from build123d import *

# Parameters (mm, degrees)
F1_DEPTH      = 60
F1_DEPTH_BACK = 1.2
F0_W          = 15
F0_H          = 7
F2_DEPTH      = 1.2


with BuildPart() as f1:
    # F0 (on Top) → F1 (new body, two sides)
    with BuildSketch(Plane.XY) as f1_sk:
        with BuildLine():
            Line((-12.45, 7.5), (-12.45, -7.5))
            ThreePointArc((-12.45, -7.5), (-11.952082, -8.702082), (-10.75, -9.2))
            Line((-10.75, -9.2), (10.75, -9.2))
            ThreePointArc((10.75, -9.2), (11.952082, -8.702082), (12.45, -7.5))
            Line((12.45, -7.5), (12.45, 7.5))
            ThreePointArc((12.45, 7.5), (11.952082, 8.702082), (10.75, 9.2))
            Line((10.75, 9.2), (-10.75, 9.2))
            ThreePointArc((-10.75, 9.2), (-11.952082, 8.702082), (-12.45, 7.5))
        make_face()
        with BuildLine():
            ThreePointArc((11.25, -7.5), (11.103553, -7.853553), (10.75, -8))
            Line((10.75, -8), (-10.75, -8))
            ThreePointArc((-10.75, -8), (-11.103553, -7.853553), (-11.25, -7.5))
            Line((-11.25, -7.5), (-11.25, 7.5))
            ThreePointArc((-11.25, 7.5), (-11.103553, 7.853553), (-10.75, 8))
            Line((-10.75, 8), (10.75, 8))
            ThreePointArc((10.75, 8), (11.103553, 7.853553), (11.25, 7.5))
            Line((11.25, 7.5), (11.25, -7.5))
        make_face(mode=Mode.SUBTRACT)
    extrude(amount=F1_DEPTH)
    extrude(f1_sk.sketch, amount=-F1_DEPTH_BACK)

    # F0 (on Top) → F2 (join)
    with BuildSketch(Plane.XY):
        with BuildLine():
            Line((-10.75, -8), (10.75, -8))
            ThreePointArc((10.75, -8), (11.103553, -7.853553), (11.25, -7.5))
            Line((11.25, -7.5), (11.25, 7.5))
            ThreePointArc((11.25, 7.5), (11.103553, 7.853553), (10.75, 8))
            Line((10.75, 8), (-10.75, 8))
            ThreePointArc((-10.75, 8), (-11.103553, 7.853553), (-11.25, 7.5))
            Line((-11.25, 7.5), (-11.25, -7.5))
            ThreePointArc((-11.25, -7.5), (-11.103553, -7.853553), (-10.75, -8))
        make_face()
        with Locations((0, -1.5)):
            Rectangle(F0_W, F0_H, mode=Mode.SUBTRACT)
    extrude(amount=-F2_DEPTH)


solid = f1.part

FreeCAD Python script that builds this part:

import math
import FreeCAD as App
import Part
import Sketcher
from FreeCAD import Vector


def add_polygon(sketch, points):
    """Adds a closed chain of lines whose ends are joined by coincident constraints."""
    first, n = sketch.GeometryCount, len(points)
    for a, b in zip(points, points[1:] + points[:1]):
        sketch.addGeometry(Part.LineSegment(App.Vector(*a, 0), App.Vector(*b, 0)), False)
    for i in range(n):
        sketch.addConstraint(Sketcher.Constraint("Coincident", first + i, 2, first + (i + 1) % n, 1))

doc = App.newDocument("Part")
params = doc.addObject("Spreadsheet::Sheet", "Params")
for row, (alias, value) in enumerate([
    ("sketch1_radius", "1.699998 mm"),
    ("sketch1_radius2", "0.500001 mm"),
    ("sketch1_height", "15 mm"),
    ("sketch1_width", "21.5 mm"),
    ("pad1_length", "60 mm"),
    ("pad1_length2", "1.2 mm"),
    ("sketch2_radius", "0.500001 mm"),
    ("sketch2_width", "15 mm"),
    ("sketch2_height", "7 mm"),
    ("sketch2_width2", "21.5 mm"),
    ("pad2_length", "1.2 mm"),
], start=1):
    params.set(f"A{row}", alias)
    params.set(f"B{row}", "=" + value)
    params.setAlias(f"B{row}", alias)

body = doc.addObject("PartDesign::Body", "Body")

# Sketch on XY plane
sketch1 = body.newObject("Sketcher::SketchObject", "Sketch")
sketch1.AttachmentSupport = (doc.getObject("XY_Plane"), [""])
sketch1.MapMode = "FlatFace"
sketch1.addGeometry([
    Part.LineSegment(Vector(-12.4, 7.5, 0), Vector(-12.4, -7.5, 0)),  # 0
    Part.ArcOfCircle(Part.Circle(Vector(-10.8, -7.5, 0), Vector(0, 0, 1), 1.7), math.radians(180), math.radians(270)),  # 1
    Part.LineSegment(Vector(-10.8, -9.2, 0), Vector(10.8, -9.2, 0)),  # 2
    Part.ArcOfCircle(Part.Circle(Vector(10.8, -7.5, 0), Vector(0, 0, 1), 1.7), math.radians(-90), math.radians(0)),  # 3
    Part.LineSegment(Vector(12.4, -7.5, 0), Vector(12.4, 7.5, 0)),  # 4
    Part.ArcOfCircle(Part.Circle(Vector(10.8, 7.5, 0), Vector(0, 0, 1), 1.7), math.radians(0), math.radians(90)),  # 5
    Part.LineSegment(Vector(10.8, 9.2, 0), Vector(-10.8, 9.2, 0)),  # 6
    Part.ArcOfCircle(Part.Circle(Vector(-10.8, 7.5, 0), Vector(0, 0, 1), 1.7), math.radians(90), math.radians(180)),  # 7
    Part.LineSegment(Vector(11.2, 7.5, 0), Vector(11.2, -7.5, 0)),  # 8
    Part.ArcOfCircle(Part.Circle(Vector(10.7, -7.5, 0), Vector(0, 0, 1), 0.5), math.radians(-90), math.radians(0)),  # 9
    Part.LineSegment(Vector(10.8, -8, 0), Vector(-10.8, -8, 0)),  # 10
    Part.ArcOfCircle(Part.Circle(Vector(-10.7, -7.5, 0), Vector(0, 0, 1), 0.5), math.radians(-180), math.radians(-90)),  # 11
    Part.LineSegment(Vector(-11.2, -7.5, 0), Vector(-11.2, 7.5, 0)),  # 12
    Part.ArcOfCircle(Part.Circle(Vector(-10.7, 7.5, 0), Vector(0, 0, 1), 0.5), math.radians(90), math.radians(180)),  # 13
    Part.LineSegment(Vector(-10.8, 8, 0), Vector(10.8, 8, 0)),  # 14
    Part.ArcOfCircle(Part.Circle(Vector(10.7, 7.5, 0), Vector(0, 0, 1), 0.5), math.radians(0), math.radians(90)),  # 15
], False)
sketch1.addConstraint([
    Sketcher.Constraint("Tangent", 0, 2, 1, 1),
    Sketcher.Constraint("Tangent", 1, 2, 2, 1),
    Sketcher.Constraint("Tangent", 2, 2, 3, 1),
    Sketcher.Constraint("Tangent", 3, 2, 4, 1),
    Sketcher.Constraint("Tangent", 4, 2, 5, 1),
    Sketcher.Constraint("Tangent", 5, 2, 6, 1),
    Sketcher.Constraint("Tangent", 6, 2, 7, 1),
    Sketcher.Constraint("Tangent", 7, 2, 0, 1),
    Sketcher.Constraint("Coincident", 8, 2, 9, 2),
    Sketcher.Constraint("Coincident", 9, 1, 10, 1),
    Sketcher.Constraint("Coincident", 10, 2, 11, 2),
    Sketcher.Constraint("Coincident", 11, 1, 12, 1),
    Sketcher.Constraint("Coincident", 12, 2, 13, 2),
    Sketcher.Constraint("Coincident", 13, 1, 14, 1),
    Sketcher.Constraint("Coincident", 14, 2, 15, 2),
    Sketcher.Constraint("Coincident", 15, 1, 8, 1),
    Sketcher.Constraint("Vertical", 0),
    Sketcher.Constraint("Horizontal", 2),
    Sketcher.Constraint("Vertical", 4),
    Sketcher.Constraint("Horizontal", 6),
    Sketcher.Constraint("Vertical", 8),
    Sketcher.Constraint("Horizontal", 10),
    Sketcher.Constraint("Vertical", 12),
    Sketcher.Constraint("Horizontal", 14),
    Sketcher.Constraint("Coincident", 9, 3, 3, 3),
    Sketcher.Constraint("Coincident", 11, 3, 1, 3),
    Sketcher.Constraint("Coincident", 13, 3, 7, 3),
    Sketcher.Constraint("Equal", 1, 3),
    Sketcher.Constraint("Equal", 3, 5),
    Sketcher.Constraint("Equal", 5, 7),
    Sketcher.Constraint("Equal", 13, 15),
    Sketcher.Constraint("Symmetric", 1, 3, 5, 3, -1, 1),
    Sketcher.Constraint("Horizontal", 3, 2, 8, 2),
    Sketcher.Constraint("Horizontal", 8, 2, 11, 1),
    Sketcher.Constraint("Horizontal", 7, 2, 12, 2),
    Sketcher.Constraint("Horizontal", 12, 2, 15, 1),
    Sketcher.Constraint("Vertical", 5, 2, 9, 1),
    Sketcher.Constraint("Vertical", 6, 2, 10, 2),
    Sketcher.Constraint("Vertical", 10, 2, 13, 1),
    Sketcher.Constraint("Vertical", 9, 1, 14, 2),
    Sketcher.Constraint("Radius", 1, 1.699998),
    Sketcher.Constraint("Radius", 9, 0.500001),
    Sketcher.Constraint("DistanceY", 0, 2, 0, 1, 15.0),
    Sketcher.Constraint("DistanceX", 2, 1, 2, 2, 21.5),
])
sketch1.setExpression("Constraints[40]", "Params.sketch1_radius")
sketch1.setExpression("Constraints[41]", "Params.sketch1_radius2")
sketch1.setExpression("Constraints[42]", "Params.sketch1_height")
sketch1.setExpression("Constraints[43]", "Params.sketch1_width")
pad1 = body.newObject("PartDesign::Pad", "Pad")
pad1.Profile = sketch1
pad1.Type = "TwoLengths"
pad1.setExpression("Length", "Params.pad1_length")
pad1.setExpression("Length2", "Params.pad1_length2")

# Sketch on XY plane
sketch2 = body.newObject("Sketcher::SketchObject", "Sketch001")
sketch2.AttachmentSupport = (doc.getObject("XY_Plane"), [""])
sketch2.MapMode = "FlatFace"
sketch2.addGeometry(Part.LineSegment(Vector(-10.8, -8, 0), Vector(10.8, -8, 0)), False)  # 0
sketch2.addGeometry(Part.ArcOfCircle(Part.Circle(Vector(10.7, -7.5, 0), Vector(0, 0, 1), 0.5), math.radians(-90), math.radians(0)), False)  # 1
sketch2.addGeometry(Part.LineSegment(Vector(11.2, -7.5, 0), Vector(11.2, 7.5, 0)), False)  # 2
sketch2.addGeometry(Part.ArcOfCircle(Part.Circle(Vector(10.7, 7.5, 0), Vector(0, 0, 1), 0.5), math.radians(0), math.radians(90)), False)  # 3
sketch2.addGeometry(Part.LineSegment(Vector(10.8, 8, 0), Vector(-10.8, 8, 0)), False)  # 4
sketch2.addGeometry(Part.ArcOfCircle(Part.Circle(Vector(-10.7, 7.5, 0), Vector(0, 0, 1), 0.5), math.radians(90), math.radians(180)), False)  # 5
sketch2.addGeometry(Part.LineSegment(Vector(-11.2, 7.5, 0), Vector(-11.2, -7.5, 0)), False)  # 6
sketch2.addGeometry(Part.ArcOfCircle(Part.Circle(Vector(-10.7, -7.5, 0), Vector(0, 0, 1), 0.5), math.radians(-180), math.radians(-90)), False)  # 7
add_polygon(sketch2, [(7.5, -5), (-7.5, -5), (-7.5, 2), (7.5, 2)])  # lines 8-11
sketch2.addConstraint([
    Sketcher.Constraint("Coincident", 0, 2, 1, 1),
    Sketcher.Constraint("Coincident", 1, 2, 2, 1),
    Sketcher.Constraint("Coincident", 2, 2, 3, 1),
    Sketcher.Constraint("Coincident", 3, 2, 4, 1),
    Sketcher.Constraint("Coincident", 4, 2, 5, 1),
    Sketcher.Constraint("Coincident", 5, 2, 6, 1),
    Sketcher.Constraint("Coincident", 6, 2, 7, 1),
    Sketcher.Constraint("Coincident", 7, 2, 0, 1),
    Sketcher.Constraint("Horizontal", 0),
    Sketcher.Constraint("Vertical", 2),
    Sketcher.Constraint("Horizontal", 4),
    Sketcher.Constraint("Vertical", 6),
    Sketcher.Constraint("Horizontal", 8),
    Sketcher.Constraint("Vertical", 9),
    Sketcher.Constraint("Horizontal", 10),
    Sketcher.Constraint("Vertical", 11),
    Sketcher.Constraint("Equal", 1, 3),
    Sketcher.Constraint("Equal", 3, 5),
    Sketcher.Constraint("Equal", 5, 7),
    Sketcher.Constraint("Symmetric", 1, 3, 5, 3, -1, 1),
    Sketcher.Constraint("Horizontal", 7, 3, 1, 2),
    Sketcher.Constraint("Horizontal", 5, 3, 2, 2),
    Sketcher.Constraint("Horizontal", 2, 2, 5, 2),
    Sketcher.Constraint("Horizontal", 1, 2, 6, 2),
    Sketcher.Constraint("Vertical", 3, 3, 0, 2),
    Sketcher.Constraint("Vertical", 0, 2, 3, 2),
    Sketcher.Constraint("Vertical", 7, 3, 4, 2),
    Sketcher.Constraint("Vertical", 4, 2, 7, 2),
    Sketcher.Constraint("Equal", 10, 2),
    Sketcher.Constraint("Radius", 1, 0.500001),
    Sketcher.Constraint("DistanceX", 8, 2, 8, 1, 15.0),
    Sketcher.Constraint("DistanceY", 9, 1, 9, 2, 7.0),
    Sketcher.Constraint("DistanceX", 0, 1, 0, 2, 21.5),
    Sketcher.Constraint("DistanceY", 8, 2, -1, 1, 5.0),
    Sketcher.Constraint("DistanceX", 8, 2, -1, 1, 7.5),
])
sketch2.setExpression("Constraints[33]", "Params.sketch2_radius")
sketch2.setExpression("Constraints[34]", "Params.sketch2_width")
sketch2.setExpression("Constraints[35]", "Params.sketch2_height")
sketch2.setExpression("Constraints[36]", "Params.sketch2_width2")
pad2 = body.newObject("PartDesign::Pad", "Pad001")
pad2.Profile = sketch2
pad2.setExpression("Length", "Params.pad2_length")
pad2.Reversed = True

doc.recompute()
